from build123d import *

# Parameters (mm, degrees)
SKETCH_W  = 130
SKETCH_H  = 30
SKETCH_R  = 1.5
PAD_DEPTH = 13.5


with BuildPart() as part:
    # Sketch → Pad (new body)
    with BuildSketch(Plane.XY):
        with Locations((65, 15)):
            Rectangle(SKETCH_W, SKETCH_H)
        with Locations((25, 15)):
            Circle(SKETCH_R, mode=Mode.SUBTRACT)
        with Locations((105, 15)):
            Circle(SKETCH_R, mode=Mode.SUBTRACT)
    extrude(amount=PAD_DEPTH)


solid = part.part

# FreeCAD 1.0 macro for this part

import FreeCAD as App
import Part
import Sketcher

V = App.Vector
Q = App.Units.Quantity

doc = App.newDocument("Part")
body = doc.addObject("PartDesign::Body", "Body")

sketch1 = body.newObject("Sketcher::SketchObject", "Sketch")
sketch1.AttachmentSupport = (doc.getObject("XY_Plane"), [""])
sketch1.MapMode = "FlatFace"
sketch1.addGeometry([
    Part.LineSegment(V(0, 30, 0), V(0, 0, 0)),
    Part.LineSegment(V(0, 0, 0), V(130, 0, 0)),
    Part.LineSegment(V(130, 0, 0), V(130, 30, 0)),
    Part.LineSegment(V(130, 30, 0), V(0, 30, 0)),
    Part.Circle(V(25, 15, 0), V(0, 0, 1), 1.5),
    Part.Circle(V(105, 15, 0), V(0, 0, 1), 1.5),
], False)
sketch1.addConstraint([
    Sketcher.Constraint("Coincident", 0, 2, 1, 1),
    Sketcher.Constraint("Coincident", 1, 2, 2, 1),
    Sketcher.Constraint("Coincident", 2, 2, 3, 1),
    Sketcher.Constraint("Coincident", 3, 2, 0, 1),
    Sketcher.Constraint("Vertical", 0),
    Sketcher.Constraint("Horizontal", 1),
    Sketcher.Constraint("Vertical", 2),
    Sketcher.Constraint("Horizontal", 3),
    Sketcher.Constraint("Coincident", 0, 2, -1, 1),
    Sketcher.Constraint("Equal", 4, 5),
    Sketcher.Constraint("Horizontal", 4, 3, 5, 3),
    Sketcher.Constraint("Diameter", 4, Q("3 mm")),
    Sketcher.Constraint("DistanceX", 1, 1, 1, 2, Q("130 mm")),
    Sketcher.Constraint("DistanceY", 0, 2, 0, 1, Q("30 mm")),
    Sketcher.Constraint("DistanceX", -1, 1, 4, 3, Q("25 mm")),
    Sketcher.Constraint("DistanceY", -1, 1, 4, 3, Q("15 mm")),
    Sketcher.Constraint("DistanceX", -1, 1, 5, 3, Q("105 mm")),
])
pad1 = body.newObject("PartDesign::Pad", "Pad")
pad1.Profile = sketch1
pad1.Length = 13.5

doc.recompute()
